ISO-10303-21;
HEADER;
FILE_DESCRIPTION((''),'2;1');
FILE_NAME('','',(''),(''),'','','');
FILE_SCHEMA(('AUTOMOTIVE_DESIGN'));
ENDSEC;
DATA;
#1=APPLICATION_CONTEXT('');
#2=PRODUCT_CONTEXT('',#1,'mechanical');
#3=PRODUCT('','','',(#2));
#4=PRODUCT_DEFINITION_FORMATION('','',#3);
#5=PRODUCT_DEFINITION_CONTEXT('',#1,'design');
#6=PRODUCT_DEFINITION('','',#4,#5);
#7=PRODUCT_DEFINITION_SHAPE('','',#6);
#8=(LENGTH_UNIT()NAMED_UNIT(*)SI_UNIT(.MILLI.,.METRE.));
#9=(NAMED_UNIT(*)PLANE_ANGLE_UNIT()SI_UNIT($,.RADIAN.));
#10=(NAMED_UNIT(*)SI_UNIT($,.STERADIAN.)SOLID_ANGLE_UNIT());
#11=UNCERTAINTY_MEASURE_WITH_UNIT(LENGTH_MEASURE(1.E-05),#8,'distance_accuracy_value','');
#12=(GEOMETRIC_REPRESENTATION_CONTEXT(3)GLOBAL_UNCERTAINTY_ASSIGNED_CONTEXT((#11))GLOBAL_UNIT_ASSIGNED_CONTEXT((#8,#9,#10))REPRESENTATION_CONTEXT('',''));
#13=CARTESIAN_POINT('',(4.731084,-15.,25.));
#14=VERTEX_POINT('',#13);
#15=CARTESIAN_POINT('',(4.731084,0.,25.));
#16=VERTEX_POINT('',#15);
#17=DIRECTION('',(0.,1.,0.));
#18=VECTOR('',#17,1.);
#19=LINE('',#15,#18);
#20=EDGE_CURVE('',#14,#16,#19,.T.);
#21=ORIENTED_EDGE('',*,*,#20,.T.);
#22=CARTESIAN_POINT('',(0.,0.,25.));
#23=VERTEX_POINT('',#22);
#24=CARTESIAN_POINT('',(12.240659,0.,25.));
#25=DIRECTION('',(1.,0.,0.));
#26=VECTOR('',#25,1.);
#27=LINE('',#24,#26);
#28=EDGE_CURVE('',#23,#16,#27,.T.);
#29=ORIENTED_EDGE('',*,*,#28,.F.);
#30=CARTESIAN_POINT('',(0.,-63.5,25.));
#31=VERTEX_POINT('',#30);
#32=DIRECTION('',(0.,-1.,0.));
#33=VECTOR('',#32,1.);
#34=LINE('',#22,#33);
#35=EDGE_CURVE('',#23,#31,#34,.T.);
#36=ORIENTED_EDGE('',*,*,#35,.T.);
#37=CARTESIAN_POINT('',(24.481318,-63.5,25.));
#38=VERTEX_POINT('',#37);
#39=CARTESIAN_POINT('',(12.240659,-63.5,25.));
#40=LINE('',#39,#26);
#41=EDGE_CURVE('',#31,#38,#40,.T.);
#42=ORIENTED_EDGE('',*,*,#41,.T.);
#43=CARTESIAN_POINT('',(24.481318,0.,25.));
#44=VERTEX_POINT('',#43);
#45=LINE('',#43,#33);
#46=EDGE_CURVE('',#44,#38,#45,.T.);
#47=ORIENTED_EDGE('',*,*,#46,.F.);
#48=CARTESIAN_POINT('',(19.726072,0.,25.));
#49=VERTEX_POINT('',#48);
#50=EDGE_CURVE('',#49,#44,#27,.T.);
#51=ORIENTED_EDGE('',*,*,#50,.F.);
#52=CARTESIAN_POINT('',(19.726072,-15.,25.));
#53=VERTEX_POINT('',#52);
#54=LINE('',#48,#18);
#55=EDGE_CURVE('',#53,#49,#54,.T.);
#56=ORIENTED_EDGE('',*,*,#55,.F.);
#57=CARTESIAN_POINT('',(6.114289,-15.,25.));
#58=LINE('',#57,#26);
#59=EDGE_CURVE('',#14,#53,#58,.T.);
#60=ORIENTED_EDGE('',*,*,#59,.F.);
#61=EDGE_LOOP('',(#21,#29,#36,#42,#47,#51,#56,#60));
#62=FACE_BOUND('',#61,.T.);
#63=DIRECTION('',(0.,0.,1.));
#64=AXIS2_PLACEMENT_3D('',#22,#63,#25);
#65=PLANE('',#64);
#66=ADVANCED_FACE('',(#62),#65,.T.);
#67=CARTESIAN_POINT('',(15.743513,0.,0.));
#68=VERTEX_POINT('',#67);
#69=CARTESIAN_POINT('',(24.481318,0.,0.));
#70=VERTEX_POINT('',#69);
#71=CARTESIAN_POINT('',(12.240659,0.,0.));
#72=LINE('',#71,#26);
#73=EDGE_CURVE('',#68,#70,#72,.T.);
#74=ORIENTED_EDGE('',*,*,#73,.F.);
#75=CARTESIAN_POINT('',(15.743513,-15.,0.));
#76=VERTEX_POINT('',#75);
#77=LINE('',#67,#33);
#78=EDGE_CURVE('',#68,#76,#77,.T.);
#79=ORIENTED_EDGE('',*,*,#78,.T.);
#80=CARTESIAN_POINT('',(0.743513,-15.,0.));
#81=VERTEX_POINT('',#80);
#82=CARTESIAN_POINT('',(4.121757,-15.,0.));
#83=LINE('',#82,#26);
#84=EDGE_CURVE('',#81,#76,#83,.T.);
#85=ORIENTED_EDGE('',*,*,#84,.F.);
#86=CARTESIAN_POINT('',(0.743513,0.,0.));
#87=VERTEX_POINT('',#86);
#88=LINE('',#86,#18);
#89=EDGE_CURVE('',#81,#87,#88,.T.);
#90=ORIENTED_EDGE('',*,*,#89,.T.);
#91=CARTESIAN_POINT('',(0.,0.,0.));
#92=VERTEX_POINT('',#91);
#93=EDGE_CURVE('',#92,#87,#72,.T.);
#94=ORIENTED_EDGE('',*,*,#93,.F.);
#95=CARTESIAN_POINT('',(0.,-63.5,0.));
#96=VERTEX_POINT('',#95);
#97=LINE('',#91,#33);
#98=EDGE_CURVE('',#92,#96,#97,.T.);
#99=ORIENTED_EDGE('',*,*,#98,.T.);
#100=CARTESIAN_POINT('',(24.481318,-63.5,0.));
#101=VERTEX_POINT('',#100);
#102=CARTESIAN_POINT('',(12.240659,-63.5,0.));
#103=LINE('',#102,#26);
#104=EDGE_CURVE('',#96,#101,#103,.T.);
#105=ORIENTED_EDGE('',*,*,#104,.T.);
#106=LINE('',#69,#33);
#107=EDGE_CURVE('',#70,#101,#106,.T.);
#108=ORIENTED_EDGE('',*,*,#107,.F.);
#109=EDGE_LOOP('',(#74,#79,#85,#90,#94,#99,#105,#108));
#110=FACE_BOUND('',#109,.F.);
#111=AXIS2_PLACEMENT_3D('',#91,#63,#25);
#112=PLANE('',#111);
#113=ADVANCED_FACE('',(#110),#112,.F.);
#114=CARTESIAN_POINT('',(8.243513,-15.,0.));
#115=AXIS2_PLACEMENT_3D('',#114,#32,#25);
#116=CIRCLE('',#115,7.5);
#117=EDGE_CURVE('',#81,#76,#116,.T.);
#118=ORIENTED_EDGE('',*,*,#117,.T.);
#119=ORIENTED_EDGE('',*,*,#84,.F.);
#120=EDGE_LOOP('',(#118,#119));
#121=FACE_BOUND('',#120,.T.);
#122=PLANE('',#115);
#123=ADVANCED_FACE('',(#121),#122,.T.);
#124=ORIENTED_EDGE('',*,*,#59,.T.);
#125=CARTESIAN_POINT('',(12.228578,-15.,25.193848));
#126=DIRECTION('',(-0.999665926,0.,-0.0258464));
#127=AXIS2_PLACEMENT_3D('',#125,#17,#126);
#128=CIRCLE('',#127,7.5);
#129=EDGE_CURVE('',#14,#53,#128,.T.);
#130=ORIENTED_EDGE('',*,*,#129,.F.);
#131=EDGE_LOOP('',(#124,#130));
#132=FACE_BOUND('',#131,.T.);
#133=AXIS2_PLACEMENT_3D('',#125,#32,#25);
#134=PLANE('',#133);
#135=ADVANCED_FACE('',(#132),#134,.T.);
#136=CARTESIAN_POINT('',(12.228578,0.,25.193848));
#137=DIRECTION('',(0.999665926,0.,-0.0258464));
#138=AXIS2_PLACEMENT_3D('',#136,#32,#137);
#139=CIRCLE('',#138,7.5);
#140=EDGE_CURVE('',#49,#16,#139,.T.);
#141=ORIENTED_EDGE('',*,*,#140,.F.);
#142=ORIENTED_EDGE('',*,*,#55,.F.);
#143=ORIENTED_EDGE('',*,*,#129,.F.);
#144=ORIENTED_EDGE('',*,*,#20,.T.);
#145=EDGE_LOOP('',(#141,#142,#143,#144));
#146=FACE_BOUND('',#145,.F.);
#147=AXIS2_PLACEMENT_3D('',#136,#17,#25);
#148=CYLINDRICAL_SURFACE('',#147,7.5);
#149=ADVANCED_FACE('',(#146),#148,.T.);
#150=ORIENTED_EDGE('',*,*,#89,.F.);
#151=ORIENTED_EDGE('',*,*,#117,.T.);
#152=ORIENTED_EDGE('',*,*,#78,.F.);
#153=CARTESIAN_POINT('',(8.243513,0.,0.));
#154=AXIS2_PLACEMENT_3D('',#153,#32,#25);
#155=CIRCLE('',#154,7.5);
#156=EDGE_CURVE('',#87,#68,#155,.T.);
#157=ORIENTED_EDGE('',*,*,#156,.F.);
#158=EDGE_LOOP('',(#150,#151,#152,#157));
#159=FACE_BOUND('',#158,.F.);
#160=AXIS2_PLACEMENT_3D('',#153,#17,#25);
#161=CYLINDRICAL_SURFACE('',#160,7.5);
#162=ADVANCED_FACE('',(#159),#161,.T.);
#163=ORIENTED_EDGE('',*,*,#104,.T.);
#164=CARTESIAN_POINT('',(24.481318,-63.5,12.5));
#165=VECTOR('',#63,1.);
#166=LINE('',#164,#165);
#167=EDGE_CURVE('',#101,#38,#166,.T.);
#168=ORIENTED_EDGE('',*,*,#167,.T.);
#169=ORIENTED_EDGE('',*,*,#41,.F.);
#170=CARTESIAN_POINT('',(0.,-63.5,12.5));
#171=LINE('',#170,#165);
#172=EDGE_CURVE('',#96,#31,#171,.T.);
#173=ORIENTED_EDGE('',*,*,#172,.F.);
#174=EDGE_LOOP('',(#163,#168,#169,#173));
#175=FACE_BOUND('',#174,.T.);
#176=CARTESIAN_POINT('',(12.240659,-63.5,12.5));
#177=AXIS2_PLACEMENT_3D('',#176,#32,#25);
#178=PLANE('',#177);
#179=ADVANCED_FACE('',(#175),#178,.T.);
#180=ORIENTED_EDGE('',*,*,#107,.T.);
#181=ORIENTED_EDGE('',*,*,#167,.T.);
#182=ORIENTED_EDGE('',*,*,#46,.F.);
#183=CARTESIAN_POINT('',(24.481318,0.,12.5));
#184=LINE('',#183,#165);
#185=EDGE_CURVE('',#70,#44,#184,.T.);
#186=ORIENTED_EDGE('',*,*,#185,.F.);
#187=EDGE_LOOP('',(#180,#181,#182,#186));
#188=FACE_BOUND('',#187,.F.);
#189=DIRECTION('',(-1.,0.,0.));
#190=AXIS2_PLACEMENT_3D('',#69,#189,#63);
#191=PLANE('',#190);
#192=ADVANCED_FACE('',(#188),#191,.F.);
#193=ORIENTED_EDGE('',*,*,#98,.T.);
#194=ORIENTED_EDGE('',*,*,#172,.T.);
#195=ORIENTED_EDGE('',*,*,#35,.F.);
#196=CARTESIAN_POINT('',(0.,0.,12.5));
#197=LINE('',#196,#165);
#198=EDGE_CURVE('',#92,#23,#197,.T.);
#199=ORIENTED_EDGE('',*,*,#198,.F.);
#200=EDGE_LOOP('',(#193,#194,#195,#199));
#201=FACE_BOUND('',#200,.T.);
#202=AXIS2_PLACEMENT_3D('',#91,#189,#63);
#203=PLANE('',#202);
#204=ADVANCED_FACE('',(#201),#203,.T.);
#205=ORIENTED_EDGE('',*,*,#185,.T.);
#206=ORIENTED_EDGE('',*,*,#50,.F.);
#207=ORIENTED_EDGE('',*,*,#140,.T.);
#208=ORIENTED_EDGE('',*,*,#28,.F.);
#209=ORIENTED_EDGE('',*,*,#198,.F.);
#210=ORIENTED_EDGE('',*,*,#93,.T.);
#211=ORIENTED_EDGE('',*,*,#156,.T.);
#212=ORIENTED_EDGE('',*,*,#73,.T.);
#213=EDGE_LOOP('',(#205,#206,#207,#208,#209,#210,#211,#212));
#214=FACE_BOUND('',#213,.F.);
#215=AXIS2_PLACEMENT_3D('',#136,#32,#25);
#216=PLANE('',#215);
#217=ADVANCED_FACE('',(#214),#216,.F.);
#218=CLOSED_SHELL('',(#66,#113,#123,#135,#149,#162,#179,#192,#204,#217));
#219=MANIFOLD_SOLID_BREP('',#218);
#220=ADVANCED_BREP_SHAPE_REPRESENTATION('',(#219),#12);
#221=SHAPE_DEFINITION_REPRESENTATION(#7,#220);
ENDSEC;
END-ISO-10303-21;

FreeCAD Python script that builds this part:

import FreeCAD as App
import Part
import Sketcher
from FreeCAD import Vector
Q = App.Units.Quantity


def add_polygon(sketch, points):
    """Adds a closed chain of lines whose ends are joined by coincident constraints."""
    first, n = sketch.GeometryCount, len(points)
    for a, b in zip(points, points[1:] + points[:1]):
        sketch.addGeometry(Part.LineSegment(App.Vector(*a, 0), App.Vector(*b, 0)), False)
    for i in range(n):
        sketch.addConstraint(Sketcher.Constraint("Coincident", first + i, 2, first + (i + 1) % n, 1))

doc = App.newDocument("Part")
params = doc.addObject("Spreadsheet::Sheet", "Params")
for row, (alias, value) in enumerate([
    ("sketch1_height", "25 mm"),
    ("pad1_length", "63.5 mm"),
    ("sketch2_diameter", "15 mm"),
    ("pad2_length", "15 mm"),
    ("sketch3_diameter", "15 mm"),
    ("pad3_length", "15 mm"),
], start=1):
    params.set(f"A{row}", alias)
    params.set(f"B{row}", "=" + value)
    params.setAlias(f"B{row}", alias)

body = doc.addObject("PartDesign::Body", "Body")

# Sketch on XZ plane
sketch1 = body.newObject("Sketcher::SketchObject", "Sketch")
sketch1.AttachmentSupport = (doc.getObject("XZ_Plane"), [""])
sketch1.MapMode = "FlatFace"
add_polygon(sketch1, [(0, 25), (0, 0), (24, 0), (24, 25)])  # lines 0-3
sketch1.addConstraint(Sketcher.Constraint("Vertical", 0))
sketch1.addConstraint(Sketcher.Constraint("Horizontal", 1))
sketch1.addConstraint(Sketcher.Constraint("Vertical", 2))
sketch1.addConstraint(Sketcher.Constraint("Horizontal", 3))
sketch1.addConstraint(Sketcher.Constraint("Coincident", 0, 2, -1, 1))
sketch1.addConstraint(Sketcher.Constraint("DistanceY", 0, 2, 0, 1, Q("25 mm")))
sketch1.addConstraint(Sketcher.Constraint("DistanceX", 1, 1, 1, 2, Q("24.481318 mm")))
sketch1.setExpression("Constraints[9]", "Params.sketch1_height")
pad1 = body.newObject("PartDesign::Pad", "Pad")
pad1.Profile = sketch1
pad1.setExpression("Length", "Params.pad1_length")

# Sketch on XZ plane
sketch2 = body.newObject("Sketcher::SketchObject", "Sketch001")
sketch2.AttachmentSupport = (doc.getObject("XZ_Plane"), [""])
sketch2.MapMode = "FlatFace"
sketch2.addGeometry(Part.Circle(Vector(12, 25, 0), Vector(0, 0, 1), 8), False)
sketch2.addConstraint(Sketcher.Constraint("Diameter", 0, Q("15 mm")))
sketch2.addConstraint(Sketcher.Constraint("DistanceX", -1, 1, 0, 3, Q("12.228578 mm")))
sketch2.addConstraint(Sketcher.Constraint("DistanceY", -1, 1, 0, 3, Q("25.193848 mm")))
sketch2.setExpression("Constraints[0]", "Params.sketch2_diameter")
pad2 = body.newObject("PartDesign::Pad", "Pad001")
pad2.Profile = sketch2
pad2.setExpression("Length", "Params.pad2_length")

# Sketch on XZ plane
sketch3 = body.newObject("Sketcher::SketchObject", "Sketch002")
sketch3.AttachmentSupport = (doc.getObject("XZ_Plane"), [""])
sketch3.MapMode = "FlatFace"
sketch3.addGeometry(Part.Circle(Vector(8, 0, 0), Vector(0, 0, 1), 8), False)
sketch3.addConstraint(Sketcher.Constraint("PointOnObject", 0, 3, -1))
sketch3.addConstraint(Sketcher.Constraint("Diameter", 0, Q("15 mm")))
sketch3.addConstraint(Sketcher.Constraint("DistanceX", -1, 1, 0, 3, Q("8.243513 mm")))
sketch3.setExpression("Constraints[1]", "Params.sketch3_diameter")
pad3 = body.newObject("PartDesign::Pad", "Pad002")
pad3.Profile = sketch3
pad3.setExpression("Length", "Params.pad3_length")

doc.recompute()
